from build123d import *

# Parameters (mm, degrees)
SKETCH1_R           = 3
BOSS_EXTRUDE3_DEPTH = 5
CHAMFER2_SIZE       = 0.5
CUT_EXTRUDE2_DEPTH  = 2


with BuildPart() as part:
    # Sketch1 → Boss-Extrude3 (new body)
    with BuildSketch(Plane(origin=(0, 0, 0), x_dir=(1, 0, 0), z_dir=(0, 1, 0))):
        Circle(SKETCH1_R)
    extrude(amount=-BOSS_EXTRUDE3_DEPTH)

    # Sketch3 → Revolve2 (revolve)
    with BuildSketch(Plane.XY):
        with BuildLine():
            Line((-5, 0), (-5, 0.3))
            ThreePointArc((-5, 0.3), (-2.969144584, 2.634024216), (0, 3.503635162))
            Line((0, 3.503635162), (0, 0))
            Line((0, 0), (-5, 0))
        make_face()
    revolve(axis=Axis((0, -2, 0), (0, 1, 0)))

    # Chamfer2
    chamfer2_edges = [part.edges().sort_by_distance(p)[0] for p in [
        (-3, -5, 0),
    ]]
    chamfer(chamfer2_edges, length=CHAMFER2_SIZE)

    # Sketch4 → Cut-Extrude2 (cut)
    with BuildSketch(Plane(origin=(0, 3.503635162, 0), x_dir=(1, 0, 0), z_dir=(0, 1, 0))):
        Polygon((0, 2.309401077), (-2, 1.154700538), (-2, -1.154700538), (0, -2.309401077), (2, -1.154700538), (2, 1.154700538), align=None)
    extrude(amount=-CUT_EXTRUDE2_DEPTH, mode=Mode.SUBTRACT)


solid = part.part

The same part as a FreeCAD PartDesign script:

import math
import FreeCAD as App
import Part
import Sketcher
from FreeCAD import Vector
Q = App.Units.Quantity


def edges_at(feature, points):
    """Names of the edges that pass closest to the given points."""
    edges = feature.Shape.Edges
    near = lambda p: min(range(len(edges)), key=lambda i: edges[i].distToShape(Part.Vertex(*p))[0])
    return sorted({f"Edge{near(p) + 1}" for p in points})


def add_polygon(sketch, points):
    """Adds a closed chain of lines whose ends are joined by coincident constraints."""
    first, n = sketch.GeometryCount, len(points)
    for a, b in zip(points, points[1:] + points[:1]):
        sketch.addGeometry(Part.LineSegment(App.Vector(*a, 0), App.Vector(*b, 0)), False)
    for i in range(n):
        sketch.addConstraint(Sketcher.Constraint("Coincident", first + i, 2, first + (i + 1) % n, 1))

doc = App.newDocument("Part")
body = doc.addObject("PartDesign::Body", "Body")

sketch1 = body.newObject("Sketcher::SketchObject", "Sketch")
sketch1.AttachmentSupport = (doc.getObject("XZ_Plane"), [""])
sketch1.MapMode = "FlatFace"
sketch1.addGeometry(Part.Circle(Vector(0, 0, 0), Vector(0, 0, 1), 3), False)
sketch1.addConstraint(Sketcher.Constraint("Coincident", 0, 3, -1, 1))
sketch1.addConstraint(Sketcher.Constraint("Diameter", 0, 6.0))
pad1 = body.newObject("PartDesign::Pad", "Pad")
pad1.Profile = sketch1
pad1.Length = 5

sketch2 = body.newObject("Sketcher::SketchObject", "Sketch001")
sketch2.AttachmentSupport = (doc.getObject("XY_Plane"), [""])
sketch2.MapMode = "FlatFace"
sketch2.addGeometry(Part.LineSegment(Vector(-5, 0.3, 0), Vector(-5, 0, 0)), False)
sketch2.addGeometry(Part.LineSegment(Vector(-5, 0, 0), Vector(0, 0, 0)), False)
sketch2.addGeometry(Part.LineSegment(Vector(0, 0, 0), Vector(0, 3.503635, 0)), False)
sketch2.addGeometry(Part.ArcOfCircle(Part.Circle(Vector(0, -2, 0), Vector(0, 0, 1), 5.503635), math.radians(90), math.radians(155.29757)), False)
sketch2.addConstraint(Sketcher.Constraint("Coincident", 0, 2, 1, 1))
sketch2.addConstraint(Sketcher.Constraint("Coincident", 1, 2, 2, 1))
sketch2.addConstraint(Sketcher.Constraint("Coincident", 2, 2, 3, 1))
sketch2.addConstraint(Sketcher.Constraint("Coincident", 3, 2, 0, 1))
sketch2.addConstraint(Sketcher.Constraint("Vertical", 0))
sketch2.addConstraint(Sketcher.Constraint("Horizontal", 1))
sketch2.addConstraint(Sketcher.Constraint("Vertical", 2))
sketch2.addConstraint(Sketcher.Constraint("Coincident", 1, 2, -1, 1))
sketch2.addConstraint(Sketcher.Constraint("PointOnObject", 3, 3, -2))
sketch2.addConstraint(Sketcher.Constraint("DistanceX", 1, 1, 1, 2, 5.0))
sketch2.addConstraint(Sketcher.Constraint("DistanceY", 0, 2, 0, 1, 0.3))
sketch2.addConstraint(Sketcher.Constraint("DistanceY", 3, 3, -1, 1, 2.0))
revolution = body.newObject("PartDesign::Revolution", "Revolution")
revolution.Profile = sketch2
revolution.ReferenceAxis = (sketch2, ["V_Axis"])
revolution.Angle = 360
doc.recompute()

chamfer = body.newObject("PartDesign::Chamfer", "Chamfer")
chamfer.Base = (revolution, edges_at(revolution, [(-3, -5, 0)]))
chamfer.Size = 0.5

sketch3 = body.newObject("Sketcher::SketchObject", "Sketch002")
sketch3.AttachmentSupport = (doc.getObject("XZ_Plane"), [""])
sketch3.MapMode = "FlatFace"
sketch3.AttachmentOffset = App.Placement(Vector(0, 0, -3.503635), App.Rotation())
add_polygon(sketch3, [(0, -2.309401), (-2, -1.154701), (-2, 1.154701), (0, 2.309401), (2, 1.154701), (2, -1.154701)])
sketch3.addConstraint(Sketcher.Constraint("Vertical", 1))
sketch3.addConstraint(Sketcher.Constraint("Vertical", 4))
sketch3.addConstraint(Sketcher.Constraint("Symmetric", 0, 2, 3, 2, -1, 1))
sketch3.addConstraint(Sketcher.Constraint("Symmetric", 2, 2, 5, 2, -1, 1))
sketch3.addConstraint(Sketcher.Constraint("PointOnObject", 2, 2, -2))
sketch3.addConstraint(Sketcher.Constraint("Parallel", 2, 5))
sketch3.addConstraint(Sketcher.Constraint("Horizontal", 1, 2, 3, 2))
sketch3.addConstraint(Sketcher.Constraint("Angle", 0, Q("150 deg")))
sketch3.addConstraint(Sketcher.Constraint("DistanceX", 0, 2, -1, 1, 2.0))
sketch3.addConstraint(Sketcher.Constraint("DistanceY", 1, 1, 1, 2, 2.309401))
pocket1 = body.newObject("PartDesign::Pocket", "Pocket")
pocket1.Profile = sketch3
pocket1.Length = 2
pocket1.Reversed = True

doc.recompute()
